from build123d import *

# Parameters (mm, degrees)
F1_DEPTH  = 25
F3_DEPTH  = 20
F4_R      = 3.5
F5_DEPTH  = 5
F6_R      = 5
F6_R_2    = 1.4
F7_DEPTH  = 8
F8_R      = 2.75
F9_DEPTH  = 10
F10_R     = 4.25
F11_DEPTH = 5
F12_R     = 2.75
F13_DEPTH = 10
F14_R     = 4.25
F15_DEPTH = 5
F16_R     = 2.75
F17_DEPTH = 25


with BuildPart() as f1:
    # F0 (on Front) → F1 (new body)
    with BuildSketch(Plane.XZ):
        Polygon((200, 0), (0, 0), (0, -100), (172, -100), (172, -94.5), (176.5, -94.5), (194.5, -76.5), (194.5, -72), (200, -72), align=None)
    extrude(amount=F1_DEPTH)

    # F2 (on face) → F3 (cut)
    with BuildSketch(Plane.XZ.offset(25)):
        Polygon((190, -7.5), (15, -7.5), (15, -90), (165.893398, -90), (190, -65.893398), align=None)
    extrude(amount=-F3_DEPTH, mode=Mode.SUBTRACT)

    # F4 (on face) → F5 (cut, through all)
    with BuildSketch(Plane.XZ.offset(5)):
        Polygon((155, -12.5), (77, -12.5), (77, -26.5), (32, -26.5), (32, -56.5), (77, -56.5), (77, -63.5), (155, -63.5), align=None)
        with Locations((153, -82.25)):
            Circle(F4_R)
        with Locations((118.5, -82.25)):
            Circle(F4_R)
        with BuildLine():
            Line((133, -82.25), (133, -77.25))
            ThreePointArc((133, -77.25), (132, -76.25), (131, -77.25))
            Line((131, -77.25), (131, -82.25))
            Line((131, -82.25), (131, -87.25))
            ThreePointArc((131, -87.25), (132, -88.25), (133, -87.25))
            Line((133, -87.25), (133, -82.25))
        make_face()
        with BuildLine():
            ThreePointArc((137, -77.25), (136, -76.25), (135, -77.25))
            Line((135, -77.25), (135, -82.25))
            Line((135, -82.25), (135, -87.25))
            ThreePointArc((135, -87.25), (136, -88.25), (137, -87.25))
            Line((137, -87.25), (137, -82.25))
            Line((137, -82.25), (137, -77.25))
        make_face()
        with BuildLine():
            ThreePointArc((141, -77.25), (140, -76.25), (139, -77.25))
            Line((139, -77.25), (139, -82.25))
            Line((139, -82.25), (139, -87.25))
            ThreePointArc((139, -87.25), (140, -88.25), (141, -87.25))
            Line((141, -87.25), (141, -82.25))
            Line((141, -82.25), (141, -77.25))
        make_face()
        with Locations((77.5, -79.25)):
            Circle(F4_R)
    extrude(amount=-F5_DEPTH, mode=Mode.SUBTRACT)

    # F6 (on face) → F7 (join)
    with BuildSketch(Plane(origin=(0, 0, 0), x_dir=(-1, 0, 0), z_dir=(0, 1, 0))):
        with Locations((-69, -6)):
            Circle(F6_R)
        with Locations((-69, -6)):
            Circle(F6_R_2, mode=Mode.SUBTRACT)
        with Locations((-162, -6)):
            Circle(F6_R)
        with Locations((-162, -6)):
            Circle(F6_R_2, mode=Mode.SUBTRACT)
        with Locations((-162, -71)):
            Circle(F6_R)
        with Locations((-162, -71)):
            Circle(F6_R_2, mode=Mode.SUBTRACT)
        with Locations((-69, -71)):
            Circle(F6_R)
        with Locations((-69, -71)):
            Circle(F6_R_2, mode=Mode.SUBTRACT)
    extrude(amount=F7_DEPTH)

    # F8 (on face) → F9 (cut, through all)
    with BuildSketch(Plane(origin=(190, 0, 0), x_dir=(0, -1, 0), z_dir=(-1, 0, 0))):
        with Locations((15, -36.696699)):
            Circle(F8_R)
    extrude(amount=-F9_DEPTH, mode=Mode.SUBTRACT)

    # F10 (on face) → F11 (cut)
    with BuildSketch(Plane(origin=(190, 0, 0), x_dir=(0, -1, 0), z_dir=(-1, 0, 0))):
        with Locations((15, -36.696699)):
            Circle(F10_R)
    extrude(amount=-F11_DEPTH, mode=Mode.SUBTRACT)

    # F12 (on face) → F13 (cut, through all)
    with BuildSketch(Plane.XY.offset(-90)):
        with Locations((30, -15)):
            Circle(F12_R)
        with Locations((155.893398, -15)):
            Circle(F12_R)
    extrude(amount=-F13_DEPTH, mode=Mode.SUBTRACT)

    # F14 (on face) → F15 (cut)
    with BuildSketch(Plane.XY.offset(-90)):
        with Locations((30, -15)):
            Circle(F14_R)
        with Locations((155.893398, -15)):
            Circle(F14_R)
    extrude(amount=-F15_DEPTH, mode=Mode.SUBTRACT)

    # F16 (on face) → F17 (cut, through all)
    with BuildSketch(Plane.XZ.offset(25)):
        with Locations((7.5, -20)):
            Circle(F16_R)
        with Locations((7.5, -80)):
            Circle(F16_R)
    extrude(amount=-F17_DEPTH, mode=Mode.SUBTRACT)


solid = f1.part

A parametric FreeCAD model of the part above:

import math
import FreeCAD as App
import Part
import Sketcher

V = App.Vector
Q = App.Units.Quantity


def add_polygon(sketch, points):
    """Adds a closed chain of lines whose ends are joined by coincident constraints."""
    first, n = sketch.GeometryCount, len(points)
    for a, b in zip(points, points[1:] + points[:1]):
        sketch.addGeometry(Part.LineSegment(App.Vector(*a, 0), App.Vector(*b, 0)), False)
    for i in range(n):
        sketch.addConstraint(Sketcher.Constraint("Coincident", first + i, 2, first + (i + 1) % n, 1))

doc = App.newDocument("Part")
body = doc.addObject("PartDesign::Body", "Body")

sketch1 = doc.addObject("Sketcher::SketchObject", "Sketch")
body.addObject(sketch1)
sketch1.AttachmentSupport = (doc.XZ_Plane, [""])
sketch1.MapMode = "FlatFace"
add_polygon(sketch1, [(200, 0), (0, 0), (0, -100), (172, -100), (172, -94.5), (176.5, -94.5), (194.5, -76.5), (194.5, -72), (200, -72)])
sketch1.addConstraint([
    Sketcher.Constraint("Horizontal", 0),
    Sketcher.Constraint("Vertical", 1),
    Sketcher.Constraint("Horizontal", 2),
    Sketcher.Constraint("Vertical", 3),
    Sketcher.Constraint("Horizontal", 4),
    Sketcher.Constraint("Vertical", 6),
    Sketcher.Constraint("Horizontal", 7),
    Sketcher.Constraint("Vertical", 8),
    Sketcher.Constraint("Coincident", 0, 2, -1, 1),
    Sketcher.Constraint("Equal", 7, 3),
    Sketcher.Constraint("Equal", 4, 6),
    Sketcher.Constraint("DistanceX", 0, 2, 0, 1, Q("200 mm")),
    Sketcher.Constraint("DistanceX", 2, 1, 2, 2, Q("172 mm")),
    Sketcher.Constraint("DistanceY", 1, 2, 1, 1, Q("100 mm")),
    Sketcher.Constraint("DistanceY", 8, 1, 8, 2, Q("72 mm")),
    Sketcher.Constraint("DistanceX", 4, 1, 4, 2, Q("4.5 mm")),
    Sketcher.Constraint("DistanceX", 7, 1, 7, 2, Q("5.5 mm")),
])
pad1 = doc.addObject("PartDesign::Pad", "Pad")
body.addObject(pad1)
pad1.Profile = sketch1
pad1.Length = 25

sketch2 = doc.addObject("Sketcher::SketchObject", "Sketch001")
body.addObject(sketch2)
sketch2.AttachmentSupport = (doc.XZ_Plane, [""])
sketch2.MapMode = "FlatFace"
sketch2.AttachmentOffset = App.Placement(V(0, 0, 25), App.Rotation())
add_polygon(sketch2, [(190, -8), (15, -8), (15, -90), (166, -90), (190, -66)])
sketch2.addConstraint([
    Sketcher.Constraint("Horizontal", 0),
    Sketcher.Constraint("Vertical", 1),
    Sketcher.Constraint("Horizontal", 2),
    Sketcher.Constraint("Vertical", 4),
    Sketcher.Constraint("DistanceX", 0, 2, 0, 1, Q("175 mm")),
    Sketcher.Constraint("Angle", 3, Q("45 deg")),
    Sketcher.Constraint("DistanceY", 1, 2, 1, 1, Q("82.5 mm")),
    Sketcher.Constraint("DistanceX", -1, 1, 0, 2, Q("15 mm")),
    Sketcher.Constraint("DistanceY", 1, 2, -1, 1, Q("90 mm")),
    Sketcher.Constraint("DistanceY", 4, 1, 4, 2, Q("58.393398 mm")),
])
pocket1 = doc.addObject("PartDesign::Pocket", "Pocket")
body.addObject(pocket1)
pocket1.Profile = sketch2
pocket1.Length = 20

sketch3 = doc.addObject("Sketcher::SketchObject", "Sketch002")
body.addObject(sketch3)
sketch3.AttachmentSupport = (doc.XZ_Plane, [""])
sketch3.MapMode = "FlatFace"
sketch3.AttachmentOffset = App.Placement(V(0, 0, 5), App.Rotation())
add_polygon(sketch3, [(155, -12.5), (77, -12.5), (77, -26.5), (32, -26.5), (32, -56.5), (77, -56.5), (77, -63.5), (155, -63.5)])
sketch3.addGeometry(Part.Circle(V(153, -82.2, 0), V(0, 0, 1), 3.5), False)
sketch3.addGeometry(Part.Circle(V(118.5, -82.2, 0), V(0, 0, 1), 3.5), False)
sketch3.addGeometry(Part.ArcOfCircle(Part.Circle(V(132, -77.2, 0), V(0, 0, 1), 1), math.radians(0), math.radians(180)), False)
sketch3.addGeometry(Part.LineSegment(V(131, -77.2, 0), V(131, -87.2, 0)), False)
sketch3.addGeometry(Part.ArcOfCircle(Part.Circle(V(132, -87.2, 0), V(0, 0, 1), 1), math.radians(180), math.radians(360)), False)
sketch3.addGeometry(Part.LineSegment(V(133, -87.2, 0), V(133, -77.2, 0)), False)
sketch3.addGeometry(Part.ArcOfCircle(Part.Circle(V(136, -77.2, 0), V(0, 0, 1), 1), math.radians(0), math.radians(180)), False)
sketch3.addGeometry(Part.LineSegment(V(135, -77.2, 0), V(135, -87.2, 0)), False)
sketch3.addGeometry(Part.ArcOfCircle(Part.Circle(V(136, -87.2, 0), V(0, 0, 1), 1), math.radians(180), math.radians(360)), False)
sketch3.addGeometry(Part.LineSegment(V(137, -87.2, 0), V(137, -77.2, 0)), False)
sketch3.addGeometry(Part.ArcOfCircle(Part.Circle(V(140, -77.2, 0), V(0, 0, 1), 1), math.radians(0), math.radians(180)), False)
sketch3.addGeometry(Part.LineSegment(V(139, -77.2, 0), V(139, -87.2, 0)), False)
sketch3.addGeometry(Part.ArcOfCircle(Part.Circle(V(140, -87.2, 0), V(0, 0, 1), 1), math.radians(180), math.radians(360)), False)
sketch3.addGeometry(Part.LineSegment(V(141, -87.2, 0), V(141, -77.2, 0)), False)
sketch3.addGeometry(Part.Circle(V(77.5, -79.2, 0), V(0, 0, 1), 3.5), False)
sketch3.addConstraint([
    Sketcher.Constraint("Tangent", 10, 2, 11, 1),
    Sketcher.Constraint("Tangent", 11, 2, 12, 1),
    Sketcher.Constraint("Tangent", 12, 2, 13, 1),
    Sketcher.Constraint("Tangent", 13, 2, 10, 1),
    Sketcher.Constraint("Tangent", 14, 2, 15, 1),
    Sketcher.Constraint("Tangent", 15, 2, 16, 1),
    Sketcher.Constraint("Tangent", 16, 2, 17, 1),
    Sketcher.Constraint("Tangent", 17, 2, 14, 1),
    Sketcher.Constraint("Tangent", 18, 2, 19, 1),
    Sketcher.Constraint("Tangent", 19, 2, 20, 1),
    Sketcher.Constraint("Tangent", 20, 2, 21, 1),
    Sketcher.Constraint("Tangent", 21, 2, 18, 1),
    Sketcher.Constraint("Horizontal", 0),
    Sketcher.Constraint("Vertical", 1),
    Sketcher.Constraint("Horizontal", 2),
    Sketcher.Constraint("Vertical", 3),
    Sketcher.Constraint("Horizontal", 4),
    Sketcher.Constraint("Vertical", 5),
    Sketcher.Constraint("Horizontal", 6),
    Sketcher.Constraint("Vertical", 7),
    Sketcher.Constraint("Vertical", 11),
    Sketcher.Constraint("Vertical", 13),
    Sketcher.Constraint("Vertical", 15),
    Sketcher.Constraint("Vertical", 17),
    Sketcher.Constraint("Vertical", 19),
    Sketcher.Constraint("Vertical", 21),
    Sketcher.Constraint("Equal", 8, 9),
    Sketcher.Constraint("Equal", 12, 14),
    Sketcher.Constraint("Equal", 16, 18),
    Sketcher.Constraint("Equal", 9, 22),
    Sketcher.Constraint("Horizontal", 8, 3, 9, 3),
    Sketcher.Constraint("Horizontal", 10, 3, 14, 3),
    Sketcher.Constraint("Horizontal", 12, 3, 16, 3),
    Sketcher.Constraint("Horizontal", 14, 3, 18, 3),
    Sketcher.Constraint("Horizontal", 16, 3, 20, 3),
    Sketcher.Constraint("Vertical", 1, 2, 4, 2),
    Sketcher.Constraint("Diameter", 8, Q("7 mm")),
    Sketcher.Constraint("Radius", 10, Q("1 mm")),
    Sketcher.Constraint("DistanceX", 0, 2, 0, 1, Q("78 mm")),
    Sketcher.Constraint("DistanceX", 2, 2, 2, 1, Q("45 mm")),
    Sketcher.Constraint("DistanceY", 1, 2, 1, 1, Q("14 mm")),
    Sketcher.Constraint("DistanceY", 3, 2, 3, 1, Q("30 mm")),
    Sketcher.Constraint("DistanceY", 5, 2, 5, 1, Q("7 mm")),
    Sketcher.Constraint("DistanceY", 11, 2, 11, 1, Q("10 mm")),
    Sketcher.Constraint("DistanceX", -1, 1, 8, 3, Q("153 mm")),
    Sketcher.Constraint("DistanceX", -1, 1, 10, 3, Q("132 mm")),
    Sketcher.Constraint("DistanceX", -1, 1, 14, 3, Q("136 mm")),
    Sketcher.Constraint("DistanceX", -1, 1, 18, 3, Q("140 mm")),
    Sketcher.Constraint("DistanceX", -1, 1, 0, 2, Q("77 mm")),
    Sketcher.Constraint("DistanceY", 9, 3, 10, 3, Q("5 mm")),
    Sketcher.Constraint("DistanceX", 22, 3, 9, 3, Q("41 mm")),
    Sketcher.Constraint("DistanceY", 9, 3, 22, 3, Q("3 mm")),
    Sketcher.Constraint("DistanceX", -1, 1, 9, 3, Q("118.5 mm")),
    Sketcher.Constraint("DistanceY", 0, 2, -1, 1, Q("12.5 mm")),
    Sketcher.Constraint("DistanceY", 8, 3, -1, 1, Q("82.25 mm")),
])
pocket2 = doc.addObject("PartDesign::Pocket", "Pocket001")
body.addObject(pocket2)
pocket2.Profile = sketch3
pocket2.Type = "ThroughAll"

sketch4 = doc.addObject("Sketcher::SketchObject", "Sketch003")
body.addObject(sketch4)
sketch4.AttachmentSupport = (doc.XZ_Plane, [""])
sketch4.MapMode = "FlatFace"
sketch4.addGeometry([
    Part.Circle(V(69, -6, 0), V(0, 0, 1), 5),
    Part.Circle(V(69, -6, 0), V(0, 0, 1), 1.4),
    Part.Circle(V(162, -6, 0), V(0, 0, 1), 5),
    Part.Circle(V(162, -6, 0), V(0, 0, 1), 1.4),
    Part.Circle(V(162, -71, 0), V(0, 0, 1), 5),
    Part.Circle(V(162, -71, 0), V(0, 0, 1), 1.4),
    Part.Circle(V(69, -71, 0), V(0, 0, 1), 5),
    Part.Circle(V(69, -71, 0), V(0, 0, 1), 1.4),
], False)
sketch4.addConstraint([
    Sketcher.Constraint("Coincident", 1, 3, 0, 3),
    Sketcher.Constraint("Coincident", 3, 3, 2, 3),
    Sketcher.Constraint("Coincident", 5, 3, 4, 3),
    Sketcher.Constraint("Coincident", 7, 3, 6, 3),
    Sketcher.Constraint("Equal", 0, 2),
    Sketcher.Constraint("Equal", 1, 3),
    Sketcher.Constraint("Equal", 2, 4),
    Sketcher.Constraint("Equal", 3, 5),
    Sketcher.Constraint("Equal", 4, 6),
    Sketcher.Constraint("Equal", 5, 7),
    Sketcher.Constraint("Horizontal", 1, 3, 2, 3),
    Sketcher.Constraint("Horizontal", 5, 3, 6, 3),
    Sketcher.Constraint("Vertical", 3, 3, 4, 3),
    Sketcher.Constraint("Vertical", 1, 3, 6, 3),
    Sketcher.Constraint("Diameter", 0, Q("10 mm")),
    Sketcher.Constraint("Diameter", 1, Q("2.8 mm")),
    Sketcher.Constraint("DistanceX", -1, 1, 0, 3, Q("69 mm")),
    Sketcher.Constraint("DistanceY", 0, 3, -1, 1, Q("6 mm")),
    Sketcher.Constraint("DistanceX", -1, 1, 2, 3, Q("162 mm")),
    Sketcher.Constraint("DistanceY", 4, 3, -1, 1, Q("71 mm")),
])
pad2 = doc.addObject("PartDesign::Pad", "Pad001")
body.addObject(pad2)
pad2.Profile = sketch4
pad2.Length = 8
pad2.Reversed = True

sketch5 = doc.addObject("Sketcher::SketchObject", "Sketch004")
body.addObject(sketch5)
sketch5.AttachmentSupport = (doc.YZ_Plane, [""])
sketch5.MapMode = "FlatFace"
sketch5.AttachmentOffset = App.Placement(V(0, 0, 190), App.Rotation())
sketch5.addGeometry(Part.Circle(V(-15, -36.7, 0), V(0, 0, 1), 2.8), False)
sketch5.addConstraint([
    Sketcher.Constraint("Diameter", 0, Q("5.5 mm")),
    Sketcher.Constraint("DistanceX", 0, 3, -1, 1, Q("15 mm")),
    Sketcher.Constraint("DistanceY", 0, 3, -1, 1, Q("36.696699 mm")),
])
pocket3 = doc.addObject("PartDesign::Pocket", "Pocket002")
body.addObject(pocket3)
pocket3.Profile = sketch5
pocket3.Type = "ThroughAll"
pocket3.Reversed = True

sketch6 = doc.addObject("Sketcher::SketchObject", "Sketch005")
body.addObject(sketch6)
sketch6.AttachmentSupport = (doc.YZ_Plane, [""])
sketch6.MapMode = "FlatFace"
sketch6.AttachmentOffset = App.Placement(V(0, 0, 190), App.Rotation())
sketch6.addGeometry(Part.Circle(V(-15, -36.7, 0), V(0, 0, 1), 4.2), False)
sketch6.addConstraint([
    Sketcher.Constraint("Diameter", 0, Q("8.5 mm")),
    Sketcher.Constraint("DistanceX", 0, 3, -1, 1, Q("15 mm")),
    Sketcher.Constraint("DistanceY", 0, 3, -1, 1, Q("36.696699 mm")),
])
pocket4 = doc.addObject("PartDesign::Pocket", "Pocket003")
body.addObject(pocket4)
pocket4.Profile = sketch6
pocket4.Length = 5
pocket4.Reversed = True

sketch7 = doc.addObject("Sketcher::SketchObject", "Sketch006")
body.addObject(sketch7)
sketch7.AttachmentSupport = (doc.XY_Plane, [""])
sketch7.MapMode = "FlatFace"
sketch7.AttachmentOffset = App.Placement(V(0, 0, -90), App.Rotation())
sketch7.addGeometry([
    Part.Circle(V(30, -15, 0), V(0, 0, 1), 2.8),
    Part.Circle(V(155.9, -15, 0), V(0, 0, 1), 2.8),
], False)
sketch7.addConstraint([
    Sketcher.Constraint("Equal", 0, 1),
    Sketcher.Constraint("Horizontal", 0, 3, 1, 3),
    Sketcher.Constraint("Diameter", 0, Q("5.5 mm")),
    Sketcher.Constraint("DistanceX", -1, 1, 0, 3, Q("30 mm")),
    Sketcher.Constraint("DistanceY", 0, 3, -1, 1, Q("15 mm")),
    Sketcher.Constraint("DistanceX", -1, 1, 1, 3, Q("155.893398 mm")),
])
pocket5 = doc.addObject("PartDesign::Pocket", "Pocket004")
body.addObject(pocket5)
pocket5.Profile = sketch7
pocket5.Type = "ThroughAll"

sketch8 = doc.addObject("Sketcher::SketchObject", "Sketch007")
body.addObject(sketch8)
sketch8.AttachmentSupport = (doc.XY_Plane, [""])
sketch8.MapMode = "FlatFace"
sketch8.AttachmentOffset = App.Placement(V(0, 0, -90), App.Rotation())
sketch8.addGeometry([
    Part.Circle(V(30, -15, 0), V(0, 0, 1), 4.2),
    Part.Circle(V(155.9, -15, 0), V(0, 0, 1), 4.2),
], False)
sketch8.addConstraint([
    Sketcher.Constraint("Equal", 0, 1),
    Sketcher.Constraint("Horizontal", 0, 3, 1, 3),
    Sketcher.Constraint("Diameter", 0, Q("8.5 mm")),
    Sketcher.Constraint("DistanceX", -1, 1, 0, 3, Q("30 mm")),
    Sketcher.Constraint("DistanceY", 0, 3, -1, 1, Q("15 mm")),
    Sketcher.Constraint("DistanceX", -1, 1, 1, 3, Q("155.893398 mm")),
])
pocket6 = doc.addObject("PartDesign::Pocket", "Pocket005")
body.addObject(pocket6)
pocket6.Profile = sketch8
pocket6.Length = 5

sketch9 = doc.addObject("Sketcher::SketchObject", "Sketch008")
body.addObject(sketch9)
sketch9.AttachmentSupport = (doc.XZ_Plane, [""])
sketch9.MapMode = "FlatFace"
sketch9.AttachmentOffset = App.Placement(V(0, 0, 25), App.Rotation())
sketch9.addGeometry([
    Part.Circle(V(7.5, -20, 0), V(0, 0, 1), 2.8),
    Part.Circle(V(7.5, -80, 0), V(0, 0, 1), 2.8),
], False)
sketch9.addConstraint([
    Sketcher.Constraint("Equal", 0, 1),
    Sketcher.Constraint("Vertical", 0, 3, 1, 3),
    Sketcher.Constraint("Diameter", 0, Q("5.5 mm")),
    Sketcher.Constraint("DistanceY", 0, 3, -1, 1, Q("20 mm")),
    Sketcher.Constraint("DistanceY", 1, 3, -1, 1, Q("80 mm")),
    Sketcher.Constraint("DistanceX", -1, 1, 0, 3, Q("7.5 mm")),
])
pocket7 = doc.addObject("PartDesign::Pocket", "Pocket006")
body.addObject(pocket7)
pocket7.Profile = sketch9
pocket7.Type = "ThroughAll"

doc.recompute()
